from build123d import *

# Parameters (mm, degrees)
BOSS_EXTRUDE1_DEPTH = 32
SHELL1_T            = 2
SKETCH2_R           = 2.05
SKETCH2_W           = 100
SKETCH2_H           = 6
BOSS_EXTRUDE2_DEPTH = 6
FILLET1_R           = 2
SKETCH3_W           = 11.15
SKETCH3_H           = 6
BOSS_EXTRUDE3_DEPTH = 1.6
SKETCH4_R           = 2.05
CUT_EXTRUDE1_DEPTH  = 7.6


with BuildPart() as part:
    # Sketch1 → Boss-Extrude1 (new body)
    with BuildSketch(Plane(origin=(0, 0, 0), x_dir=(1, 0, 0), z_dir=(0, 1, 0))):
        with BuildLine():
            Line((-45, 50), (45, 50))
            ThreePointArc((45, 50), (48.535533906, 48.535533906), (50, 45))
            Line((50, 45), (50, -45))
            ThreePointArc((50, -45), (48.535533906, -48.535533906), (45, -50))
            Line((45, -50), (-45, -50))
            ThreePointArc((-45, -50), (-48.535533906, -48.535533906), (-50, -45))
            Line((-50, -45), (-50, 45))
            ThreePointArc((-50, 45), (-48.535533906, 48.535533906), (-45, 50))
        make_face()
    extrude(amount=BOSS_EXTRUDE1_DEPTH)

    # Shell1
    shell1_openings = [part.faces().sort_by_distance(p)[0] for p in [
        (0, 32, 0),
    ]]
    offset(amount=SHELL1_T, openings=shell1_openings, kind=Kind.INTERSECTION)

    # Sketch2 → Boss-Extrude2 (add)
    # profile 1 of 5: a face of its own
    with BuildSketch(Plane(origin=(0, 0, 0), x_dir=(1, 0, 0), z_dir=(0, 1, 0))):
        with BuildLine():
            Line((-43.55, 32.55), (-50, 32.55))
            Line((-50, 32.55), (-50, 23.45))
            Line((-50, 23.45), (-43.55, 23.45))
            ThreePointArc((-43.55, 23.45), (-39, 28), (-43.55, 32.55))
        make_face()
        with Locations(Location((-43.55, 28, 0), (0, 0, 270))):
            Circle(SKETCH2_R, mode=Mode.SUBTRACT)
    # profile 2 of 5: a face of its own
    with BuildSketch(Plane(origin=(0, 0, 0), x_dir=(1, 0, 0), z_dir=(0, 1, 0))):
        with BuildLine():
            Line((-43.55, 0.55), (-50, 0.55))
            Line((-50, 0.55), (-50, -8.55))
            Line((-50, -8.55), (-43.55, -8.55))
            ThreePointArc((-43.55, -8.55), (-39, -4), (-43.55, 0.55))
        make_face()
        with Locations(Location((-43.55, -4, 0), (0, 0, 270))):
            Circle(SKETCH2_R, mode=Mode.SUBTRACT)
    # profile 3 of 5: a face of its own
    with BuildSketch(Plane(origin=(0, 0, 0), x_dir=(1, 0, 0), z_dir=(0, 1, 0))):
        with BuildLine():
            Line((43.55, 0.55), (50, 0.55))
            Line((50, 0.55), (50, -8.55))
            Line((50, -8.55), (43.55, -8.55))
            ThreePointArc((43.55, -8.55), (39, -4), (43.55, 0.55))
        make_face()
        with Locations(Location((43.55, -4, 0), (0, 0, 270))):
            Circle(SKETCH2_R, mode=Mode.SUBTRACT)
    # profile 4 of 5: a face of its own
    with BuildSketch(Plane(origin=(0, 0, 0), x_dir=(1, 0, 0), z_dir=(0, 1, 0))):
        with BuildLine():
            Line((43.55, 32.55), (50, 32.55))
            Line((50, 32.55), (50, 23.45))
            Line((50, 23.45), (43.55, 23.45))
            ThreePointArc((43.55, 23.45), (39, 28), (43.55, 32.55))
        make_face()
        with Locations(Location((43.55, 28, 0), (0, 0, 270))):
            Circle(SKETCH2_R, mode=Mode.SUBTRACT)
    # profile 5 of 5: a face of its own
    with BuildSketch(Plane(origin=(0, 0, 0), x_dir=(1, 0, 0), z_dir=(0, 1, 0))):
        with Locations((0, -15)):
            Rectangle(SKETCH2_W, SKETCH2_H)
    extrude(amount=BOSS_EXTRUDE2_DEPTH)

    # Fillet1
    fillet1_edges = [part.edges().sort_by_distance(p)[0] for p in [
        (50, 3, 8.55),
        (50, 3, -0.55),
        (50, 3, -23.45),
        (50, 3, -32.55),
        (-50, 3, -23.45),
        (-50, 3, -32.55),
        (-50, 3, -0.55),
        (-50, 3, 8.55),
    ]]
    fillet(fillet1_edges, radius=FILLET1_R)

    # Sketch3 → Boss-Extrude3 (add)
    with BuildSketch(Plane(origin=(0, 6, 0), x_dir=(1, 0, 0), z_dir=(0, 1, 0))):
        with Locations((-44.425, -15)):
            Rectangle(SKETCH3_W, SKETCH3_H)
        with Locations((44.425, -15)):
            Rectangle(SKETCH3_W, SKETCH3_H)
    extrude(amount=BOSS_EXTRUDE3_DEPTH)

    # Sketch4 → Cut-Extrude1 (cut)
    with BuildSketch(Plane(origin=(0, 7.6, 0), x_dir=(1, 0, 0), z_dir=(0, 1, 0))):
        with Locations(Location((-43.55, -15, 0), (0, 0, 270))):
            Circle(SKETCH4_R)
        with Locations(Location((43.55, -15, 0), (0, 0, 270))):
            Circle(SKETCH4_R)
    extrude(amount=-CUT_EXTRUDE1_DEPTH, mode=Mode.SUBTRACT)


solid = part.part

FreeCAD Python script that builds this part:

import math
import FreeCAD as App
import Part
import Sketcher
from FreeCAD import Vector
Q = App.Units.Quantity


def edges_at(feature, points):
    """Names of the edges that pass closest to the given points."""
    edges = feature.Shape.Edges
    near = lambda p: min(range(len(edges)), key=lambda i: edges[i].distToShape(Part.Vertex(*p))[0])
    return sorted({f"Edge{near(p) + 1}" for p in points})


def faces_at(feature, points):
    """Names of the faces that lie closest to the given points."""
    faces = feature.Shape.Faces
    near = lambda p: min(range(len(faces)), key=lambda i: faces[i].distToShape(Part.Vertex(*p))[0])
    return sorted({f"Face{near(p) + 1}" for p in points})


def add_polygon(sketch, points):
    """Adds a closed chain of lines whose ends are joined by coincident constraints."""
    first, n = sketch.GeometryCount, len(points)
    for a, b in zip(points, points[1:] + points[:1]):
        sketch.addGeometry(Part.LineSegment(App.Vector(*a, 0), App.Vector(*b, 0)), False)
    for i in range(n):
        sketch.addConstraint(Sketcher.Constraint("Coincident", first + i, 2, first + (i + 1) % n, 1))

doc = App.newDocument("Part")
body = doc.addObject("PartDesign::Body", "Body")

sketch1 = doc.addObject("Sketcher::SketchObject", "Sketch")
body.addObject(sketch1)
sketch1.AttachmentSupport = (doc.XZ_Plane, [""])
sketch1.MapMode = "FlatFace"
sketch1.addGeometry([
    Part.LineSegment(Vector(45, -50, 0), Vector(-45, -50, 0)),
    Part.ArcOfCircle(Part.Circle(Vector(-45, -45, 0), Vector(0, 0, 1), 5), math.radians(180), math.radians(270)),
    Part.LineSegment(Vector(-50, -45, 0), Vector(-50, 45, 0)),
    Part.ArcOfCircle(Part.Circle(Vector(-45, 45, 0), Vector(0, 0, 1), 5), math.radians(90), math.radians(180)),
    Part.LineSegment(Vector(-45, 50, 0), Vector(45, 50, 0)),
    Part.ArcOfCircle(Part.Circle(Vector(45, 45, 0), Vector(0, 0, 1), 5), math.radians(0), math.radians(90)),
    Part.LineSegment(Vector(50, 45, 0), Vector(50, -45, 0)),
    Part.ArcOfCircle(Part.Circle(Vector(45, -45, 0), Vector(0, 0, 1), 5), math.radians(-90), math.radians(0)),
], False)
sketch1.addConstraint([
    Sketcher.Constraint("Tangent", 0, 2, 1, 2),
    Sketcher.Constraint("Tangent", 1, 1, 2, 1),
    Sketcher.Constraint("Tangent", 2, 2, 3, 2),
    Sketcher.Constraint("Tangent", 3, 1, 4, 1),
    Sketcher.Constraint("Tangent", 4, 2, 5, 2),
    Sketcher.Constraint("Tangent", 5, 1, 6, 1),
    Sketcher.Constraint("Tangent", 6, 2, 7, 2),
    Sketcher.Constraint("Tangent", 7, 1, 0, 1),
    Sketcher.Constraint("Horizontal", 0),
    Sketcher.Constraint("Vertical", 2),
    Sketcher.Constraint("Horizontal", 4),
    Sketcher.Constraint("Vertical", 6),
    Sketcher.Constraint("Equal", 1, 3),
    Sketcher.Constraint("Equal", 3, 5),
    Sketcher.Constraint("Equal", 5, 7),
    Sketcher.Constraint("Symmetric", 1, 3, 5, 3, -1, 1),
    Sketcher.Constraint("Equal", 4, 2),
    Sketcher.Constraint("Radius", 1, Q("5 mm")),
    Sketcher.Constraint("DistanceX", 0, 2, 0, 1, Q("90 mm")),
])
pad1 = doc.addObject("PartDesign::Pad", "Pad")
body.addObject(pad1)
pad1.Profile = sketch1
pad1.Length = 32
pad1.Reversed = True
doc.recompute()

thickness = doc.addObject("PartDesign::Thickness", "Thickness")
body.addObject(thickness)
thickness.Base = (pad1, faces_at(pad1, [(0, 32, 0)]))
thickness.Value = 2
thickness.Reversed = False
thickness.Join = "Intersection"

sketch2 = doc.addObject("Sketcher::SketchObject", "Sketch001")
body.addObject(sketch2)
sketch2.AttachmentSupport = (doc.XZ_Plane, [""])
sketch2.MapMode = "FlatFace"
sketch2.addGeometry(Part.LineSegment(Vector(-43.5, -32.5, 0), Vector(-50, -32.5, 0)), False)
sketch2.addGeometry(Part.LineSegment(Vector(-50, -32.5, 0), Vector(-50, -23.4, 0)), False)
sketch2.addGeometry(Part.LineSegment(Vector(-50, -23.4, 0), Vector(-43.5, -23.4, 0)), False)
sketch2.addGeometry(Part.ArcOfCircle(Part.Circle(Vector(-43.5, -28, 0), Vector(0, 0, 1), 4.5), math.radians(-90), math.radians(90)), False)
sketch2.addGeometry(Part.Circle(Vector(-43.5, -28, 0), Vector(0, 0, 1), 2), False)
sketch2.addGeometry(Part.LineSegment(Vector(-43.5, -0.6, 0), Vector(-50, -0.6, 0)), False)
sketch2.addGeometry(Part.LineSegment(Vector(-50, -0.6, 0), Vector(-50, 8.6, 0)), False)
sketch2.addGeometry(Part.LineSegment(Vector(-50, 8.6, 0), Vector(-43.5, 8.6, 0)), False)
sketch2.addGeometry(Part.ArcOfCircle(Part.Circle(Vector(-43.5, 4, 0), Vector(0, 0, 1), 4.5), math.radians(-90), math.radians(90)), False)
sketch2.addGeometry(Part.Circle(Vector(-43.5, 4, 0), Vector(0, 0, 1), 2), False)
sketch2.addGeometry(Part.LineSegment(Vector(50, -0.6, 0), Vector(43.5, -0.6, 0)), False)
sketch2.addGeometry(Part.ArcOfCircle(Part.Circle(Vector(43.5, 4, 0), Vector(0, 0, 1), 4.5), math.radians(90), math.radians(270)), False)
sketch2.addGeometry(Part.LineSegment(Vector(43.5, 8.6, 0), Vector(50, 8.6, 0)), False)
sketch2.addGeometry(Part.LineSegment(Vector(50, 8.6, 0), Vector(50, -0.6, 0)), False)
sketch2.addGeometry(Part.Circle(Vector(43.5, 4, 0), Vector(0, 0, 1), 2), False)
sketch2.addGeometry(Part.LineSegment(Vector(50, -32.5, 0), Vector(43.5, -32.5, 0)), False)
sketch2.addGeometry(Part.ArcOfCircle(Part.Circle(Vector(43.5, -28, 0), Vector(0, 0, 1), 4.5), math.radians(90), math.radians(270)), False)
sketch2.addGeometry(Part.LineSegment(Vector(43.5, -23.4, 0), Vector(50, -23.4, 0)), False)
sketch2.addGeometry(Part.LineSegment(Vector(50, -23.4, 0), Vector(50, -32.5, 0)), False)
sketch2.addGeometry(Part.Circle(Vector(43.5, -28, 0), Vector(0, 0, 1), 2), False)
add_polygon(sketch2, [(-50, 12), (-50, 18), (50, 18), (50, 12)])
sketch2.addConstraint([
    Sketcher.Constraint("Coincident", 0, 2, 1, 1),
    Sketcher.Constraint("Coincident", 1, 2, 2, 1),
    Sketcher.Constraint("Tangent", 2, 2, 3, 2),
    Sketcher.Constraint("Tangent", 3, 1, 0, 1),
    Sketcher.Constraint("Coincident", 5, 2, 6, 1),
    Sketcher.Constraint("Coincident", 6, 2, 7, 1),
    Sketcher.Constraint("Tangent", 7, 2, 8, 2),
    Sketcher.Constraint("Tangent", 8, 1, 5, 1),
    Sketcher.Constraint("Tangent", 10, 2, 11, 2),
    Sketcher.Constraint("Tangent", 11, 1, 12, 1),
    Sketcher.Constraint("Coincident", 12, 2, 13, 1),
    Sketcher.Constraint("Coincident", 13, 2, 10, 1),
    Sketcher.Constraint("Tangent", 15, 2, 16, 2),
    Sketcher.Constraint("Tangent", 16, 1, 17, 1),
    Sketcher.Constraint("Coincident", 17, 2, 18, 1),
    Sketcher.Constraint("Coincident", 18, 2, 15, 1),
    Sketcher.Constraint("Horizontal", 0),
    Sketcher.Constraint("Vertical", 1),
    Sketcher.Constraint("Horizontal", 2),
    Sketcher.Constraint("Horizontal", 5),
    Sketcher.Constraint("Vertical", 6),
    Sketcher.Constraint("Horizontal", 7),
    Sketcher.Constraint("Horizontal", 10),
    Sketcher.Constraint("Horizontal", 12),
    Sketcher.Constraint("Vertical", 13),
    Sketcher.Constraint("Horizontal", 15),
    Sketcher.Constraint("Horizontal", 17),
    Sketcher.Constraint("Vertical", 18),
    Sketcher.Constraint("Vertical", 20),
    Sketcher.Constraint("Horizontal", 21),
    Sketcher.Constraint("Vertical", 22),
    Sketcher.Constraint("Horizontal", 23),
    Sketcher.Constraint("Coincident", 4, 3, 3, 3),
    Sketcher.Constraint("Coincident", 9, 3, 8, 3),
    Sketcher.Constraint("Coincident", 14, 3, 11, 3),
    Sketcher.Constraint("Coincident", 19, 3, 16, 3),
    Sketcher.Constraint("Equal", 3, 8),
    Sketcher.Constraint("Equal", 4, 9),
    Sketcher.Constraint("Equal", 8, 11),
    Sketcher.Constraint("Equal", 9, 14),
    Sketcher.Constraint("Equal", 11, 16),
    Sketcher.Constraint("Equal", 14, 19),
    Sketcher.Constraint("Symmetric", 8, 3, 11, 3, -2),
    Sketcher.Constraint("Symmetric", 3, 3, 16, 3, -2),
    Sketcher.Constraint("Vertical", 4, 3, 8, 3),
    Sketcher.Constraint("Vertical", 1, 2, 5, 2),
    Sketcher.Constraint("Vertical", 13, 2, 17, 2),
    Sketcher.Constraint("Vertical", 6, 2, 20, 2),
    Sketcher.Constraint("Vertical", 18, 2, 21, 2),
    Sketcher.Constraint("Equal", 7, 10),
    Sketcher.Constraint("Diameter", 4, Q("4.1 mm")),
    Sketcher.Constraint("DistanceX", 21, 1, 21, 2, Q("100 mm")),
    Sketcher.Constraint("DistanceY", 20, 1, 20, 2, Q("6 mm")),
    Sketcher.Constraint("Radius", 3, Q("4.55 mm")),
    Sketcher.Constraint("DistanceY", 3, 3, -1, 1, Q("28 mm")),
    Sketcher.Constraint("DistanceY", -1, 1, 8, 3, Q("4 mm")),
    Sketcher.Constraint("DistanceY", -1, 1, 20, 2, Q("18 mm")),
    Sketcher.Constraint("DistanceX", 0, 2, 0, 1, Q("6.45 mm")),
])
pad2 = doc.addObject("PartDesign::Pad", "Pad001")
body.addObject(pad2)
pad2.Profile = sketch2
pad2.Length = 6
pad2.Reversed = True
doc.recompute()

fillet = doc.addObject("PartDesign::Fillet", "Fillet")
body.addObject(fillet)
fillet.Base = (pad2, edges_at(pad2, [
    (50, 3, 8.55),
    (50, 3, -0.55),
    (50, 3, -23.45),
    (50, 3, -32.55),
    (-50, 3, -23.45),
    (-50, 3, -32.55),
    (-50, 3, -0.55),
    (-50, 3, 8.55),
]))
fillet.Radius = 2

sketch3 = doc.addObject("Sketcher::SketchObject", "Sketch002")
body.addObject(sketch3)
sketch3.AttachmentSupport = (doc.XZ_Plane, [""])
sketch3.MapMode = "FlatFace"
sketch3.AttachmentOffset = App.Placement(Vector(0, 0, -6), App.Rotation())
add_polygon(sketch3, [(-50, 12), (-50, 18), (-39, 18), (-39, 12)])
add_polygon(sketch3, [(39, 12), (39, 18), (50, 18), (50, 12)])
sketch3.addConstraint([
    Sketcher.Constraint("Vertical", 0),
    Sketcher.Constraint("Horizontal", 1),
    Sketcher.Constraint("Vertical", 2),
    Sketcher.Constraint("Horizontal", 3),
    Sketcher.Constraint("Vertical", 4),
    Sketcher.Constraint("Horizontal", 5),
    Sketcher.Constraint("Vertical", 6),
    Sketcher.Constraint("Horizontal", 7),
    Sketcher.Constraint("Symmetric", 1, 2, 4, 2, -2),
    Sketcher.Constraint("Symmetric", 3, 2, 6, 2, -2),
    Sketcher.Constraint("DistanceY", 0, 1, 0, 2, Q("6 mm")),
    Sketcher.Constraint("DistanceX", 0, 2, -1, 1, Q("50 mm")),
    Sketcher.Constraint("DistanceY", -1, 1, 0, 2, Q("18 mm")),
    Sketcher.Constraint("DistanceX", 1, 1, 1, 2, Q("11.15 mm")),
])
pad3 = doc.addObject("PartDesign::Pad", "Pad002")
body.addObject(pad3)
pad3.Profile = sketch3
pad3.Length = 1.6
pad3.Reversed = True

sketch4 = doc.addObject("Sketcher::SketchObject", "Sketch003")
body.addObject(sketch4)
sketch4.AttachmentSupport = (doc.XZ_Plane, [""])
sketch4.MapMode = "FlatFace"
sketch4.AttachmentOffset = App.Placement(Vector(0, 0, -7.6), App.Rotation())
sketch4.addGeometry([
    Part.Circle(Vector(-43.5, 15, 0), Vector(0, 0, 1), 2),
    Part.Circle(Vector(43.5, 15, 0), Vector(0, 0, 1), 2),
], False)
sketch4.addConstraint([
    Sketcher.Constraint("Equal", 0, 1),
    Sketcher.Constraint("Symmetric", 0, 3, 1, 3, -2),
    Sketcher.Constraint("Diameter", 0, Q("4.1 mm")),
    Sketcher.Constraint("DistanceY", -1, 1, 0, 3, Q("15 mm")),
    Sketcher.Constraint("DistanceX", 0, 3, 1, 3, Q("87.1 mm")),
])
pocket1 = doc.addObject("PartDesign::Pocket", "Pocket")
body.addObject(pocket1)
pocket1.Profile = sketch4
pocket1.Length = 7.6
pocket1.Reversed = True

doc.recompute()
